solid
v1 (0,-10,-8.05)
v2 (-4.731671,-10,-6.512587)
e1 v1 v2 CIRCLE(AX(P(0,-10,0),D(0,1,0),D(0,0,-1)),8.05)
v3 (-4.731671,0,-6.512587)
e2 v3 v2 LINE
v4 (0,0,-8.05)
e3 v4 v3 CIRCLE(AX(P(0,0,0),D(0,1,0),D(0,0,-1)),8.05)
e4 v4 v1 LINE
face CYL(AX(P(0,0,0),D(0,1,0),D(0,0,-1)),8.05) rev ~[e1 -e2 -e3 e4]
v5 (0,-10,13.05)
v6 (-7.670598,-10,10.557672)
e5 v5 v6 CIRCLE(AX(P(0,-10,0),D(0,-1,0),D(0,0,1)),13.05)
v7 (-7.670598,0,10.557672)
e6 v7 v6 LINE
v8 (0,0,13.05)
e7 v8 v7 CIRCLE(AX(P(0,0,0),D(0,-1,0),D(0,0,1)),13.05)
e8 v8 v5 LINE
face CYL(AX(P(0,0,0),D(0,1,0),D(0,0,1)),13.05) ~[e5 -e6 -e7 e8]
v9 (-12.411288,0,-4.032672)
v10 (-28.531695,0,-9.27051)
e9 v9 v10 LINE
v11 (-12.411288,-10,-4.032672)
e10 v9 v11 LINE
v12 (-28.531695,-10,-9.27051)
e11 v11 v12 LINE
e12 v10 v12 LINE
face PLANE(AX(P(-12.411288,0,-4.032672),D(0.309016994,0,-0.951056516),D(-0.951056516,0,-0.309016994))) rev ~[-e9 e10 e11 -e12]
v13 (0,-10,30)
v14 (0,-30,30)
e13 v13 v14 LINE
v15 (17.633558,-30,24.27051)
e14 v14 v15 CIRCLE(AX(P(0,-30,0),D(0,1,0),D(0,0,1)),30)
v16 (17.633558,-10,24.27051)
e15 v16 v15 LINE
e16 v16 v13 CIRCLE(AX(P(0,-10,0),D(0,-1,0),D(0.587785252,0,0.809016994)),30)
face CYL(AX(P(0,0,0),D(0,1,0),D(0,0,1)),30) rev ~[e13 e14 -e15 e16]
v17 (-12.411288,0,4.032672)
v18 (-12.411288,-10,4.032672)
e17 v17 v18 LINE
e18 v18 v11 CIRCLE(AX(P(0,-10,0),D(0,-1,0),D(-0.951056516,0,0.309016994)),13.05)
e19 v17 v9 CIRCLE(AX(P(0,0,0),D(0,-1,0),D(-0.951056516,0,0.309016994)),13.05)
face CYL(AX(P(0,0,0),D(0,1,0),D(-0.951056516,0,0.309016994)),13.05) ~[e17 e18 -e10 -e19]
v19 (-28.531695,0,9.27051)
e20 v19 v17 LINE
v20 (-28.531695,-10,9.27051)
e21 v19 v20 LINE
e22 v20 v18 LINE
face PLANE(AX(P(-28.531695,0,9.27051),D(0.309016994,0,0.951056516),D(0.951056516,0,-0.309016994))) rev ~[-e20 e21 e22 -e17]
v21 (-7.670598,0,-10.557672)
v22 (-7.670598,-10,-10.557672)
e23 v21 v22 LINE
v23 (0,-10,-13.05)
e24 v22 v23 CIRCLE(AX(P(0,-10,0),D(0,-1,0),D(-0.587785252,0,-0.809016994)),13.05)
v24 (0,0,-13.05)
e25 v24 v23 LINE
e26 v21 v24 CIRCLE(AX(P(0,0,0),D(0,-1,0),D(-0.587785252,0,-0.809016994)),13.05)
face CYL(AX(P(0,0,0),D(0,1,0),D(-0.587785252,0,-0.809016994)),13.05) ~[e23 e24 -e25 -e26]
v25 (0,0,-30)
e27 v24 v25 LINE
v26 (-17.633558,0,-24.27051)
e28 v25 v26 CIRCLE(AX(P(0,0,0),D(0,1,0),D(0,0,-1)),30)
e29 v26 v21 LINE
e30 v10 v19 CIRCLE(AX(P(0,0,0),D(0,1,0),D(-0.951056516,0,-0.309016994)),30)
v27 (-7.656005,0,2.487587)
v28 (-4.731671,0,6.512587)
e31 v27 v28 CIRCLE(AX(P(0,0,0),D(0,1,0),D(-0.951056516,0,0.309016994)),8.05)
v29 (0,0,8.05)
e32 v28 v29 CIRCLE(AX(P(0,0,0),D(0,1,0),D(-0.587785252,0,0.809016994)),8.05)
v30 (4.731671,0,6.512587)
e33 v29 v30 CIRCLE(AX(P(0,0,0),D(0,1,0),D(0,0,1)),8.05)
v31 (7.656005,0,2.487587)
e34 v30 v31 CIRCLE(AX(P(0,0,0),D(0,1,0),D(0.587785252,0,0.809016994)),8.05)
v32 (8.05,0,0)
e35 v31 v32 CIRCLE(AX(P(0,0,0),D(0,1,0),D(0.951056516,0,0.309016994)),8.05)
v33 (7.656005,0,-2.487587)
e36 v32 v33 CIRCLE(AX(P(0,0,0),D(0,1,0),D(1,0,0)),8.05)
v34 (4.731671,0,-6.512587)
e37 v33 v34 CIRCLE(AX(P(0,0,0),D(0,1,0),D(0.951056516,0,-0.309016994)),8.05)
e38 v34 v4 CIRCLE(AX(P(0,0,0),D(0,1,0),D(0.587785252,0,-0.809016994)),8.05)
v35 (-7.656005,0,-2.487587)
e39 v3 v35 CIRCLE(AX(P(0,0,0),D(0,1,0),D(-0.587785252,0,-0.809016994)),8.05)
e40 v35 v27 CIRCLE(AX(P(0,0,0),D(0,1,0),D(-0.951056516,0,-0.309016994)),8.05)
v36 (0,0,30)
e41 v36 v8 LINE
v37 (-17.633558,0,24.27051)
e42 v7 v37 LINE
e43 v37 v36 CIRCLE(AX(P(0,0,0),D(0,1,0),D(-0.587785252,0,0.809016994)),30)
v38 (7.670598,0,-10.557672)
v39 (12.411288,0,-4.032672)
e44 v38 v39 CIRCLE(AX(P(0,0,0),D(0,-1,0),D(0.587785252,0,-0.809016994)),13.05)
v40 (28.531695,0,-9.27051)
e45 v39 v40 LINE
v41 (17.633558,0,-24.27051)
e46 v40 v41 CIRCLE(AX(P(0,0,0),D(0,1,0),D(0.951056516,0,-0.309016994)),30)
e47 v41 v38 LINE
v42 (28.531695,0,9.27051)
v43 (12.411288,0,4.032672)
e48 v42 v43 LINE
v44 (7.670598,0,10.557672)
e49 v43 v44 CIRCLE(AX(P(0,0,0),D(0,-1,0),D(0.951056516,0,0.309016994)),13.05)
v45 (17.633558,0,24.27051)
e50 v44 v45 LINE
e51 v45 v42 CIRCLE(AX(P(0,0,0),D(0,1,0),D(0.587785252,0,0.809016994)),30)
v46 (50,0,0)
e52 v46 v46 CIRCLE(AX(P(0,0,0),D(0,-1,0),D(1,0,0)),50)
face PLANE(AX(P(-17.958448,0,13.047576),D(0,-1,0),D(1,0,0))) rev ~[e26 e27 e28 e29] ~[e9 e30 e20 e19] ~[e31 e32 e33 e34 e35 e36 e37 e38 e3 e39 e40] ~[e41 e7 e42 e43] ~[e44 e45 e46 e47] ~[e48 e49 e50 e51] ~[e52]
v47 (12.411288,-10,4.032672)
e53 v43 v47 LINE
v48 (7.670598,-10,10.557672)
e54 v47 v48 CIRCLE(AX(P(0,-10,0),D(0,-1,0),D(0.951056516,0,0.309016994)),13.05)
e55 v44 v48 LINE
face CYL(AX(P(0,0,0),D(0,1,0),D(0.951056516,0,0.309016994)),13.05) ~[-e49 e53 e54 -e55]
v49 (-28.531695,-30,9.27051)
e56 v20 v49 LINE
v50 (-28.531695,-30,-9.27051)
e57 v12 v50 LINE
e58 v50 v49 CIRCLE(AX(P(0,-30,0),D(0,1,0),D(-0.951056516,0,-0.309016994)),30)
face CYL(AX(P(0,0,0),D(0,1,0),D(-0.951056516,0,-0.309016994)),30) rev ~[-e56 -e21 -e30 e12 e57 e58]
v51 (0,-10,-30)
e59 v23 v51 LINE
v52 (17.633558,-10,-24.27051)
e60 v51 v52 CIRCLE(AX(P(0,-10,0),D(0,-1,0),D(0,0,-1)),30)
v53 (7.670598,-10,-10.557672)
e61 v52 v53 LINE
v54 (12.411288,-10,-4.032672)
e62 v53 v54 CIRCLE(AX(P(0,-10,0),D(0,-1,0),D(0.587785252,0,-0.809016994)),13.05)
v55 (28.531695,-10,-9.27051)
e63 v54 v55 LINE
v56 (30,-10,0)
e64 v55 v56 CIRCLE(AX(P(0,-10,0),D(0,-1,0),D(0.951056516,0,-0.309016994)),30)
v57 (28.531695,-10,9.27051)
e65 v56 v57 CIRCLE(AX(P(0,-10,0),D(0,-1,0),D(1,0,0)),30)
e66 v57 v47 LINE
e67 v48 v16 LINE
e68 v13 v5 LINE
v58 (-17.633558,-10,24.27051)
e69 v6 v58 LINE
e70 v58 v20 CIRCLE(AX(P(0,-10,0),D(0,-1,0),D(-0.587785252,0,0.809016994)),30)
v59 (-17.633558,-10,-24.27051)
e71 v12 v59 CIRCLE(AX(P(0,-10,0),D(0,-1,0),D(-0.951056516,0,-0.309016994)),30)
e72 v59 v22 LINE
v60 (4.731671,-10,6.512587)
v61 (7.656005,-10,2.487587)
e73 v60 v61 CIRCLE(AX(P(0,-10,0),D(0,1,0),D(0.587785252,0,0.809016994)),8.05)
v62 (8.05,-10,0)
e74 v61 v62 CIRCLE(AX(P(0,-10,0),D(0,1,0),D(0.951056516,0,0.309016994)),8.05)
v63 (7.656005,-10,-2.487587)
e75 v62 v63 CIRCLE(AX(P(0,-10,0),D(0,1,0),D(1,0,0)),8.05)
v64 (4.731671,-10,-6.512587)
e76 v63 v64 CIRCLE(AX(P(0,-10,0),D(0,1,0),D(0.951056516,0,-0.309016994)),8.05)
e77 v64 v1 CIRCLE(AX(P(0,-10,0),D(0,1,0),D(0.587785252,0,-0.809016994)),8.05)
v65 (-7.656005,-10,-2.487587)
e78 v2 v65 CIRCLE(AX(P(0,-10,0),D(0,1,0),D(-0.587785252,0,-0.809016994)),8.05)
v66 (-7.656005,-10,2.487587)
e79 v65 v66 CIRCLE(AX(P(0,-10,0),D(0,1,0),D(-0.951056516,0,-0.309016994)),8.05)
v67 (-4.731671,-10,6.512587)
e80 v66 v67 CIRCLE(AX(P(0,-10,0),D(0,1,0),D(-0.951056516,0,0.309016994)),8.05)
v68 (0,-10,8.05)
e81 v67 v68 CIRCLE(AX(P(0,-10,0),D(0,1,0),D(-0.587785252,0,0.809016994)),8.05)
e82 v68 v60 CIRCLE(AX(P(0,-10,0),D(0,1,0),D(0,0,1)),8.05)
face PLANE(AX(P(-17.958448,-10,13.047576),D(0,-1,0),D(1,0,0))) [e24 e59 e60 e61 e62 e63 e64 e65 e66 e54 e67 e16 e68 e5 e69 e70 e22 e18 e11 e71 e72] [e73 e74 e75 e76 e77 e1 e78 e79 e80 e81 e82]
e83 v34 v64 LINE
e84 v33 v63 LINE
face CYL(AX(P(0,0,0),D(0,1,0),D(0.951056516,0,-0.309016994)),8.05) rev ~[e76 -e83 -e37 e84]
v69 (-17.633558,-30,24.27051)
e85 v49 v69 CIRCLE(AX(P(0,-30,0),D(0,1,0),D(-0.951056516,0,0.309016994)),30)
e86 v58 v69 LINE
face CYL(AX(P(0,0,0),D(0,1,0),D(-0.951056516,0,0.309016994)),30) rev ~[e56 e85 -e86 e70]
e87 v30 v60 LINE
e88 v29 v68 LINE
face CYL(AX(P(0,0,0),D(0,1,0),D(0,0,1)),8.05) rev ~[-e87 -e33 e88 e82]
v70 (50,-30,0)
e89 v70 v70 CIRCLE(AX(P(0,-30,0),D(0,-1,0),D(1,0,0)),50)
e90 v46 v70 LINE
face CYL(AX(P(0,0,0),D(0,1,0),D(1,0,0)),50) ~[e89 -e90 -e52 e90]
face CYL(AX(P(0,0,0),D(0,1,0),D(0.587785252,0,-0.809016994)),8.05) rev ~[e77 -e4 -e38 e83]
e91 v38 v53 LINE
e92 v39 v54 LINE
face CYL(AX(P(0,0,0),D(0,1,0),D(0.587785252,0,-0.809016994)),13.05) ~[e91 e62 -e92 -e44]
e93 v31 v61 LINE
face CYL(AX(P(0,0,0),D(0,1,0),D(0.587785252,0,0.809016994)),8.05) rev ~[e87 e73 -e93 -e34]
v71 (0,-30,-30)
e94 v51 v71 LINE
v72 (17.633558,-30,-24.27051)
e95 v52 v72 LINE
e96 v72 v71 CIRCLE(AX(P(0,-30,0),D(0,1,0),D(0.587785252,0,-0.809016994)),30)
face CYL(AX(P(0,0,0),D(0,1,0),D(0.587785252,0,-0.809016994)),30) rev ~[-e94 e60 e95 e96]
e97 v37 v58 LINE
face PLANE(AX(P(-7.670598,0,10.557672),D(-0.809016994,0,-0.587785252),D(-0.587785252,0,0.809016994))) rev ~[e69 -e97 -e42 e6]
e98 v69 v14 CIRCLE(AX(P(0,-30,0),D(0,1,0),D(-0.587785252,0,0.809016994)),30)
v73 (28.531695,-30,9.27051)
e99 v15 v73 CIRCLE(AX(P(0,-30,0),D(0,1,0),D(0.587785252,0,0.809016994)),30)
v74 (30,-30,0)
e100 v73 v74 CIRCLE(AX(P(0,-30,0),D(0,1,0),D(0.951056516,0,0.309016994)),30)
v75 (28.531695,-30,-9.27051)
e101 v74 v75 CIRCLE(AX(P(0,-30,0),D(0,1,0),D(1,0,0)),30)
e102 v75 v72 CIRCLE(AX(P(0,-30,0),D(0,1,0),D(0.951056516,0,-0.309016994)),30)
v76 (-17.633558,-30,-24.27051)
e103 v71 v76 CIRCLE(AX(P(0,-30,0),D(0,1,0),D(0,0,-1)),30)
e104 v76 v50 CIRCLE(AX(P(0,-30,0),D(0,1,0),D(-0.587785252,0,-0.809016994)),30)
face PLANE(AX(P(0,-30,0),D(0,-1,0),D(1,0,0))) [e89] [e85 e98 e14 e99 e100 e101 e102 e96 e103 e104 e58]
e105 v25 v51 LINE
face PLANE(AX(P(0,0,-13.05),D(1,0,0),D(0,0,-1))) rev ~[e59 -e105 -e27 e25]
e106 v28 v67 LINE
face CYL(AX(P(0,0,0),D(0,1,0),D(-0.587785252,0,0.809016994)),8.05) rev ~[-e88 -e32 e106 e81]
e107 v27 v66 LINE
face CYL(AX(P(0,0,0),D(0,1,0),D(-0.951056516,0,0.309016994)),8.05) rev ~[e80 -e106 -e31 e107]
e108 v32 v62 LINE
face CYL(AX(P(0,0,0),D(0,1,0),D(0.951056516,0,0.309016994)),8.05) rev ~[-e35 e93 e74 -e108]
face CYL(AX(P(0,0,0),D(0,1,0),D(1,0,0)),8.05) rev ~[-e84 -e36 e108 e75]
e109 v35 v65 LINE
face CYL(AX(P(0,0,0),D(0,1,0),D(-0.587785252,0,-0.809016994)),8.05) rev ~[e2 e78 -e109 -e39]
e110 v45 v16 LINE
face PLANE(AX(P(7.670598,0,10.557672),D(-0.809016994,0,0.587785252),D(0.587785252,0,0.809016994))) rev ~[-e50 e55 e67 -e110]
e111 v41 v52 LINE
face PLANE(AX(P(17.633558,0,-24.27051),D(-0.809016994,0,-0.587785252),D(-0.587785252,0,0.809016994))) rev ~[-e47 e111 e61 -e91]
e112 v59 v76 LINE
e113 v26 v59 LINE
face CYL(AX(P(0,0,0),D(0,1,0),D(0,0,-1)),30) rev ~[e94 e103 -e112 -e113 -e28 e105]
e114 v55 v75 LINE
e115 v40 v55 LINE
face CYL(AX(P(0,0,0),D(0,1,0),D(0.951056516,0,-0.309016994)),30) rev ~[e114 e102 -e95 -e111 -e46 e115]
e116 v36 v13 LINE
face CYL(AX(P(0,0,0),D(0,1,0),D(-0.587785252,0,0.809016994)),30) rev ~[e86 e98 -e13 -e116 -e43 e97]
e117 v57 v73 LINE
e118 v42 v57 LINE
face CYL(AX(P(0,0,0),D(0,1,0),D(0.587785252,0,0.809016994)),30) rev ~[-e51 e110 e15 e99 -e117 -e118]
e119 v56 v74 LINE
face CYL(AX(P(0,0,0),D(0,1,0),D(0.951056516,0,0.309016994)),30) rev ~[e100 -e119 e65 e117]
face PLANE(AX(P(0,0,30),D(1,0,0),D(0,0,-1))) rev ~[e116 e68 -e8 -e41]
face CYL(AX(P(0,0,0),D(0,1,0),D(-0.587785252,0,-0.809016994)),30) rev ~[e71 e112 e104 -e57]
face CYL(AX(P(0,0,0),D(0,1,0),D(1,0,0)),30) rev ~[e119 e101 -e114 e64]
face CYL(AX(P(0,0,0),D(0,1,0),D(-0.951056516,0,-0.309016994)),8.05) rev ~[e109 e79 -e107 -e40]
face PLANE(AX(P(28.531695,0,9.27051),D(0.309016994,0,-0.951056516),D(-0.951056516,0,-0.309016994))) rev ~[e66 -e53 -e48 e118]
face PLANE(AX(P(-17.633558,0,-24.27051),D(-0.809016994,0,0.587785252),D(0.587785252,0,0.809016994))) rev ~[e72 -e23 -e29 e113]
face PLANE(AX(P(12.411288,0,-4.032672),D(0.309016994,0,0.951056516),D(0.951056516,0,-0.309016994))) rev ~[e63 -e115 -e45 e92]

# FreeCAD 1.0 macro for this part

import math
import FreeCAD as App
import Part
import Sketcher

V = App.Vector
Q = App.Units.Quantity

doc = App.newDocument("Part")
params = doc.addObject("Spreadsheet::Sheet", "Params")
for row, (alias, value) in enumerate([
    ("sketch1_diameter", "100 mm"),
    ("sketch1_radius", "30 mm"),
    ("pad1_length", "30 mm"),
    ("sketch2_radius", "30 mm"),
    ("sketch2_radius2", "13.05 mm"),
    ("sketch2_radius3", "8.05 mm"),
    ("pad2_length", "10 mm"),
], start=1):
    params.set(f"A{row}", alias)
    params.set(f"B{row}", "=" + value)
    params.setAlias(f"B{row}", alias)

body = doc.addObject("PartDesign::Body", "Body")

sketch1 = doc.addObject("Sketcher::SketchObject", "Sketch")
body.addObject(sketch1)
sketch1.AttachmentSupport = (doc.XZ_Plane, [""])
sketch1.MapMode = "FlatFace"
sketch1.addGeometry([
    Part.Circle(V(0, 0, 0), V(0, 0, 1), 50),
    Part.ArcOfCircle(Part.Circle(V(0, 0, 0), V(0, 0, 1), 30), math.radians(18), math.radians(54)),
    Part.ArcOfCircle(Part.Circle(V(0, 0, 0), V(0, 0, 1), 30), math.radians(0), math.radians(18)),
    Part.ArcOfCircle(Part.Circle(V(0, 0, 0), V(0, 0, 1), 30), math.radians(-18), math.radians(0)),
    Part.ArcOfCircle(Part.Circle(V(0, 0, 0), V(0, 0, 1), 30), math.radians(-54), math.radians(-18)),
    Part.ArcOfCircle(Part.Circle(V(0, 0, 0), V(0, 0, 1), 30), math.radians(-90), math.radians(-54)),
    Part.ArcOfCircle(Part.Circle(V(0, 0, 0), V(0, 0, 1), 30), math.radians(-126), math.radians(-90)),
    Part.ArcOfCircle(Part.Circle(V(0, 0, 0), V(0, 0, 1), 30), math.radians(-162), math.radians(-126)),
    Part.ArcOfCircle(Part.Circle(V(0, 0, 0), V(0, 0, 1), 30), math.radians(162), math.radians(198)),
    Part.ArcOfCircle(Part.Circle(V(0, 0, 0), V(0, 0, 1), 30), math.radians(126), math.radians(162)),
    Part.ArcOfCircle(Part.Circle(V(0, 0, 0), V(0, 0, 1), 30), math.radians(90), math.radians(126)),
    Part.ArcOfCircle(Part.Circle(V(0, 0, 0), V(0, 0, 1), 30), math.radians(54), math.radians(90)),
], False)
sketch1.addConstraint([
    Sketcher.Constraint("Tangent", 1, 1, 2, 2),
    Sketcher.Constraint("Tangent", 2, 1, 3, 2),
    Sketcher.Constraint("Tangent", 3, 1, 4, 2),
    Sketcher.Constraint("Tangent", 4, 1, 5, 2),
    Sketcher.Constraint("Tangent", 5, 1, 6, 2),
    Sketcher.Constraint("Tangent", 6, 1, 7, 2),
    Sketcher.Constraint("Tangent", 7, 1, 8, 2),
    Sketcher.Constraint("Tangent", 8, 1, 9, 2),
    Sketcher.Constraint("Tangent", 9, 1, 10, 2),
    Sketcher.Constraint("Tangent", 10, 1, 11, 2),
    Sketcher.Constraint("Tangent", 11, 1, 1, 2),
    Sketcher.Constraint("Coincident", 0, 3, -1, 1),
    Sketcher.Constraint("Coincident", 1, 3, -1, 1),
    Sketcher.Constraint("Coincident", 3, 3, -1, 1),
    Sketcher.Constraint("Coincident", 5, 3, -1, 1),
    Sketcher.Constraint("Coincident", 7, 3, -1, 1),
    Sketcher.Constraint("Coincident", 9, 3, -1, 1),
    Sketcher.Constraint("PointOnObject", 2, 1, -1),
    Sketcher.Constraint("PointOnObject", 5, 1, -2),
    Sketcher.Constraint("PointOnObject", 10, 1, -2),
    Sketcher.Constraint("Horizontal", 4, 1, 6, 1),
    Sketcher.Constraint("Horizontal", 3, 1, 7, 1),
    Sketcher.Constraint("Horizontal", 1, 1, 8, 1),
    Sketcher.Constraint("Horizontal", 9, 1, 11, 1),
    Sketcher.Constraint("Vertical", 1, 1, 3, 1),
    Sketcher.Constraint("Vertical", 6, 1, 9, 1),
    Sketcher.Constraint("Diameter", 0, Q("100 mm")),
    Sketcher.Constraint("Radius", 1, Q("30 mm")),
    Sketcher.Constraint("DistanceY", 4, 1, 3, 1, Q("15 mm")),
    Sketcher.Constraint("DistanceY", -1, 1, 1, 1, Q("9.27051 mm")),
])
sketch1.setExpression("Constraints[26]", "Params.sketch1_diameter")
sketch1.setExpression("Constraints[27]", "Params.sketch1_radius")
pad1 = doc.addObject("PartDesign::Pad", "Pad")
body.addObject(pad1)
pad1.Profile = sketch1
pad1.setExpression("Length", "Params.pad1_length")

sketch2 = doc.addObject("Sketcher::SketchObject", "Sketch001")
body.addObject(sketch2)
sketch2.AttachmentSupport = (doc.XZ_Plane, [""])
sketch2.MapMode = "FlatFace"
sketch2.addGeometry([
    Part.LineSegment(V(-7.7, 10.6, 0), V(-17.6, 24.3, 0)),
    Part.ArcOfCircle(Part.Circle(V(0, 0, 0), V(0, 0, 1), 30), math.radians(126), math.radians(162)),
    Part.LineSegment(V(-28.5, 9.3, 0), V(-12.4, 4, 0)),
    Part.ArcOfCircle(Part.Circle(V(0, 0, 0), V(0, 0, 1), 13.1), math.radians(162), math.radians(198)),
    Part.LineSegment(V(-12.4, -4, 0), V(-28.5, -9.3, 0)),
    Part.ArcOfCircle(Part.Circle(V(0, 0, 0), V(0, 0, 1), 30), math.radians(-162), math.radians(-126)),
    Part.LineSegment(V(-17.6, -24.3, 0), V(-7.7, -10.6, 0)),
    Part.ArcOfCircle(Part.Circle(V(0, 0, 0), V(0, 0, 1), 13), math.radians(-126), math.radians(-90)),
    Part.LineSegment(V(0, -13.1, 0), V(0, -30, 0)),
    Part.ArcOfCircle(Part.Circle(V(0, 0, 0), V(0, 0, 1), 30), math.radians(-90), math.radians(-54)),
    Part.LineSegment(V(17.6, -24.3, 0), V(7.7, -10.6, 0)),
    Part.ArcOfCircle(Part.Circle(V(0, 0, 0), V(0, 0, 1), 13.1), math.radians(-54), math.radians(-18)),
    Part.LineSegment(V(12.4, -4, 0), V(28.5, -9.3, 0)),
    Part.ArcOfCircle(Part.Circle(V(0, 0, 0), V(0, 0, 1), 30), math.radians(-18), math.radians(0)),
    Part.ArcOfCircle(Part.Circle(V(0, 0, 0), V(0, 0, 1), 30), math.radians(0), math.radians(18)),
    Part.LineSegment(V(28.5, 9.3, 0), V(12.4, 4, 0)),
    Part.ArcOfCircle(Part.Circle(V(0, 0, 0), V(0, 0, 1), 13.1), math.radians(18), math.radians(54)),
    Part.LineSegment(V(7.7, 10.6, 0), V(17.6, 24.3, 0)),
    Part.ArcOfCircle(Part.Circle(V(0, 0, 0), V(0, 0, 1), 30), math.radians(54), math.radians(90)),
    Part.LineSegment(V(0, 30, 0), V(0, 13.1, 0)),
    Part.ArcOfCircle(Part.Circle(V(0, 0, 0), V(0, 0, 1), 13), math.radians(90), math.radians(126)),
    Part.ArcOfCircle(Part.Circle(V(0, 0, 0), V(0, 0, 1), 8.1), math.radians(126), math.radians(162)),
    Part.ArcOfCircle(Part.Circle(V(0, 0, 0), V(0, 0, 1), 8.1), math.radians(90), math.radians(126)),
    Part.ArcOfCircle(Part.Circle(V(0, 0, 0), V(0, 0, 1), 8.1), math.radians(54), math.radians(90)),
    Part.ArcOfCircle(Part.Circle(V(0, 0, 0), V(0, 0, 1), 8.1), math.radians(18), math.radians(54)),
    Part.ArcOfCircle(Part.Circle(V(0, 0, 0), V(0, 0, 1), 8.1), math.radians(0), math.radians(18)),
    Part.ArcOfCircle(Part.Circle(V(0, 0, 0), V(0, 0, 1), 8.1), math.radians(-18), math.radians(0)),
    Part.ArcOfCircle(Part.Circle(V(0, 0, 0), V(0, 0, 1), 8.1), math.radians(-54), math.radians(-18)),
    Part.ArcOfCircle(Part.Circle(V(0, 0, 0), V(0, 0, 1), 8.1), math.radians(-90), math.radians(-54)),
    Part.ArcOfCircle(Part.Circle(V(0, 0, 0), V(0, 0, 1), 8.1), math.radians(-126), math.radians(-90)),
    Part.ArcOfCircle(Part.Circle(V(0, 0, 0), V(0, 0, 1), 8.1), math.radians(-162), math.radians(-126)),
    Part.ArcOfCircle(Part.Circle(V(0, 0, 0), V(0, 0, 1), 8.1), math.radians(162), math.radians(198)),
], False)
sketch2.addConstraint([
    Sketcher.Constraint("Coincident", 0, 2, 1, 1),
    Sketcher.Constraint("Coincident", 1, 2, 2, 1),
    Sketcher.Constraint("Coincident", 2, 2, 3, 1),
    Sketcher.Constraint("Coincident", 3, 2, 4, 1),
    Sketcher.Constraint("Coincident", 4, 2, 5, 1),
    Sketcher.Constraint("Coincident", 5, 2, 6, 1),
    Sketcher.Constraint("Coincident", 6, 2, 7, 1),
    Sketcher.Constraint("Coincident", 7, 2, 8, 1),
    Sketcher.Constraint("Coincident", 8, 2, 9, 1),
    Sketcher.Constraint("Coincident", 9, 2, 10, 1),
    Sketcher.Constraint("Coincident", 10, 2, 11, 1),
    Sketcher.Constraint("Coincident", 11, 2, 12, 1),
    Sketcher.Constraint("Coincident", 12, 2, 13, 1),
    Sketcher.Constraint("Tangent", 13, 2, 14, 1),
    Sketcher.Constraint("Coincident", 14, 2, 15, 1),
    Sketcher.Constraint("Coincident", 15, 2, 16, 1),
    Sketcher.Constraint("Coincident", 16, 2, 17, 1),
    Sketcher.Constraint("Coincident", 17, 2, 18, 1),
    Sketcher.Constraint("Coincident", 18, 2, 19, 1),
    Sketcher.Constraint("Coincident", 19, 2, 20, 1),
    Sketcher.Constraint("Coincident", 20, 2, 0, 1),
    Sketcher.Constraint("Tangent", 21, 1, 22, 2),
    Sketcher.Constraint("Tangent", 22, 1, 23, 2),
    Sketcher.Constraint("Tangent", 23, 1, 24, 2),
    Sketcher.Constraint("Tangent", 24, 1, 25, 2),
    Sketcher.Constraint("Tangent", 25, 1, 26, 2),
    Sketcher.Constraint("Tangent", 26, 1, 27, 2),
    Sketcher.Constraint("Tangent", 27, 1, 28, 2),
    Sketcher.Constraint("Tangent", 28, 1, 29, 2),
    Sketcher.Constraint("Tangent", 29, 1, 30, 2),
    Sketcher.Constraint("Tangent", 30, 1, 31, 2),
    Sketcher.Constraint("Tangent", 31, 1, 21, 2),
    Sketcher.Constraint("Vertical", 8),
    Sketcher.Constraint("Vertical", 19),
    Sketcher.Constraint("Coincident", 1, 3, -1, 1),
    Sketcher.Constraint("Coincident", 3, 3, -1, 1),
    Sketcher.Constraint("Coincident", 5, 3, -1, 1),
    Sketcher.Constraint("Coincident", 7, 3, -1, 1),
    Sketcher.Constraint("Coincident", 9, 3, -1, 1),
    Sketcher.Constraint("Coincident", 11, 3, -1, 1),
    Sketcher.Constraint("Coincident", 13, 3, -1, 1),
    Sketcher.Constraint("Coincident", 16, 3, -1, 1),
    Sketcher.Constraint("Coincident", 18, 3, -1, 1),
    Sketcher.Constraint("Coincident", 20, 3, -1, 1),
    Sketcher.Constraint("Coincident", 21, 3, -1, 1),
    Sketcher.Constraint("Coincident", 23, 3, -1, 1),
    Sketcher.Constraint("Coincident", 25, 3, -1, 1),
    Sketcher.Constraint("Coincident", 27, 3, -1, 1),
    Sketcher.Constraint("Coincident", 29, 3, -1, 1),
    Sketcher.Constraint("Equal", 1, 5),
    Sketcher.Constraint("Equal", 3, 7),
    Sketcher.Constraint("Equal", 5, 9),
    Sketcher.Constraint("Equal", 7, 11),
    Sketcher.Constraint("Equal", 9, 13),
    Sketcher.Constraint("Equal", 13, 14),
    Sketcher.Constraint("Equal", 11, 16),
    Sketcher.Constraint("Equal", 14, 18),
    Sketcher.Constraint("Equal", 16, 20),
    Sketcher.Constraint("PointOnObject", 7, 2, -2),
    Sketcher.Constraint("PointOnObject", 13, 2, -1),
    Sketcher.Constraint("PointOnObject", 18, 2, -2),
    Sketcher.Constraint("PointOnObject", 22, 1, -2),
    Sketcher.Constraint("PointOnObject", 25, 1, -1),
    Sketcher.Constraint("PointOnObject", 28, 1, -2),
    Sketcher.Constraint("Parallel", 0, 10),
    Sketcher.Constraint("Parallel", 2, 12),
    Sketcher.Constraint("Parallel", 4, 15),
    Sketcher.Constraint("Parallel", 6, 17),
    Sketcher.Constraint("Horizontal", 5, 2, 9, 2),
    Sketcher.Constraint("Horizontal", 6, 2, 10, 2),
    Sketcher.Constraint("Horizontal", 3, 2, 11, 2),
    Sketcher.Constraint("Horizontal", 4, 2, 12, 2),
    Sketcher.Constraint("Horizontal", 1, 2, 14, 2),
    Sketcher.Constraint("Horizontal", 0, 2, 17, 2),
    Sketcher.Constraint("Horizontal", 21, 1, 23, 1),
    Sketcher.Constraint("Horizontal", 27, 1, 29, 1),
    Sketcher.Constraint("Horizontal", 26, 1, 30, 1),
    Sketcher.Constraint("Horizontal", 24, 1, 31, 1),
    Sketcher.Constraint("Vertical", 2, 2, 3, 2),
    Sketcher.Constraint("Vertical", 0, 2, 5, 2),
    Sketcher.Constraint("Vertical", 24, 1, 26, 1),
    Sketcher.Constraint("Vertical", 23, 1, 27, 1),
    Sketcher.Constraint("Radius", 1, Q("30 mm")),
    Sketcher.Constraint("Angle", 0, Q("126 deg")),
    Sketcher.Constraint("Angle", 2, Q("-18 deg")),
    Sketcher.Constraint("Radius", 3, Q("13.05 mm")),
    Sketcher.Constraint("Radius", 21, Q("8.05 mm")),
    Sketcher.Constraint("DistanceY", 1, 2, 0, 2, Q("15 mm")),
    Sketcher.Constraint("DistanceY", 24, 1, 23, 1, Q("4.025 mm")),
    Sketcher.Constraint("DistanceY", -1, 1, 0, 2, Q("24.27051 mm")),
    Sketcher.Constraint("DistanceX", 21, 1, -1, 1, Q("4.731671 mm")),
])
sketch2.setExpression("Constraints[82]", "Params.sketch2_radius")
sketch2.setExpression("Constraints[85]", "Params.sketch2_radius2")
sketch2.setExpression("Constraints[86]", "Params.sketch2_radius3")
pad2 = doc.addObject("PartDesign::Pad", "Pad001")
body.addObject(pad2)
pad2.Profile = sketch2
pad2.setExpression("Length", "Params.pad2_length")

doc.recompute()
